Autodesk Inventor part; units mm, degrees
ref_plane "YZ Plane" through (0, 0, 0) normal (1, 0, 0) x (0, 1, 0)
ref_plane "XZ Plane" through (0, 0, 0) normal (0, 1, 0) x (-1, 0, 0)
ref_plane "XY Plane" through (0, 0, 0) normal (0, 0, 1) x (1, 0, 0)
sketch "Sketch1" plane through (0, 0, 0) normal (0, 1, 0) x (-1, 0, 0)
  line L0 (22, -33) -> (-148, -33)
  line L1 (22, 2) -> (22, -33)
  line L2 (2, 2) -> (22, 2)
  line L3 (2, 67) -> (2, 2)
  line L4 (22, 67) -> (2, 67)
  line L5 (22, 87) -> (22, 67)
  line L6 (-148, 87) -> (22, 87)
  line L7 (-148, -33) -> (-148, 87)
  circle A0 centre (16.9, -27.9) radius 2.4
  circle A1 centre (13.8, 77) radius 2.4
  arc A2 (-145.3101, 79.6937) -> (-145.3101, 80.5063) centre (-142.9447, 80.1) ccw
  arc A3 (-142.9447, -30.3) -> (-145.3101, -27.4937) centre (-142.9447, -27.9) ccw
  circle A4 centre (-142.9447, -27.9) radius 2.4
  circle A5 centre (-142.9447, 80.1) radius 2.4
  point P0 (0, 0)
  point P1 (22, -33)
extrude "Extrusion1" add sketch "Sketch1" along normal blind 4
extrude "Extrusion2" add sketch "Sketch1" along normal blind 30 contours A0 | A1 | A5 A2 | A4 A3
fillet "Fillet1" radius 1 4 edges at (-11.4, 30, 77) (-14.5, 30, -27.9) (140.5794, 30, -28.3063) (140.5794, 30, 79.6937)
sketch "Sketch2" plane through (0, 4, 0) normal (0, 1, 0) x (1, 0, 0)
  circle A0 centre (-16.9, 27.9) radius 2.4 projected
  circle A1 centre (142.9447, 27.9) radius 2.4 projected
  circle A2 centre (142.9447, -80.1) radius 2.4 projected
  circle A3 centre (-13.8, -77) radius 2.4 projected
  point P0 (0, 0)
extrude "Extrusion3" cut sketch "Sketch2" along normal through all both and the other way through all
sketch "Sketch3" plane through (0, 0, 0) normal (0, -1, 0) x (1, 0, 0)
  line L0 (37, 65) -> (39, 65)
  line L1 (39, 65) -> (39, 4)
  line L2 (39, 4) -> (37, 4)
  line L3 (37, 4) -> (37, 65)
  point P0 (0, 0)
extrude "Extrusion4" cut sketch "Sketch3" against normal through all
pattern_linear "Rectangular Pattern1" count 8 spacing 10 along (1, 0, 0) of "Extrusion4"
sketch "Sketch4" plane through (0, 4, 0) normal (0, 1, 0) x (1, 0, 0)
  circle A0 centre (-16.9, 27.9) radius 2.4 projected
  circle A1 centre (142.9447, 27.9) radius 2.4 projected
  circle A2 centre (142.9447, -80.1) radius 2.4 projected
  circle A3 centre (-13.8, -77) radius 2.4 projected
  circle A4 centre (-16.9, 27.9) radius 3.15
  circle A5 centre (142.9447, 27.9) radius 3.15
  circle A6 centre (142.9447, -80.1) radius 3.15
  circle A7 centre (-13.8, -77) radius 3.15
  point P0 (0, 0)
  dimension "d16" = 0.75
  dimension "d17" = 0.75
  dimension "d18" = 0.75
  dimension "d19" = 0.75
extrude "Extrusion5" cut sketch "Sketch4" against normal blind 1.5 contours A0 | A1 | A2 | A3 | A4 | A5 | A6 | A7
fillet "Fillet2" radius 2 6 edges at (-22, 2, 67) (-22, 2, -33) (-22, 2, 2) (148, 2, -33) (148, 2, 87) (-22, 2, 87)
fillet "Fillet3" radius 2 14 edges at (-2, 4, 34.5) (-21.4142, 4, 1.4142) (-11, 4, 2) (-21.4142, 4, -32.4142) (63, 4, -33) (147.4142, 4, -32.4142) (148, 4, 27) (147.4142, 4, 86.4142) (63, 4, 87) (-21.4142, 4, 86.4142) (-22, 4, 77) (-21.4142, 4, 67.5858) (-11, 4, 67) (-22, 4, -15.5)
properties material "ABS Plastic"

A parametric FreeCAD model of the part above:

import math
import FreeCAD as App
import Part
import Sketcher

V = App.Vector


def edges_at(feature, points):
    """Names of the edges that pass closest to the given points."""
    edges = feature.Shape.Edges
    near = lambda p: min(range(len(edges)), key=lambda i: edges[i].distToShape(Part.Vertex(*p))[0])
    return sorted({f"Edge{near(p) + 1}" for p in points})

doc = App.newDocument("Part")
body = doc.addObject("PartDesign::Body", "Body")

# Sketch on XZ plane
sketch1 = body.newObject("Sketcher::SketchObject", "Sketch")
sketch1.AttachmentSupport = (doc.getObject("XZ_Plane"), [""])
sketch1.MapMode = "FlatFace"
sketch1.addGeometry(Part.LineSegment(V(148, -33, 0), V(-22, -33, 0)), False)
sketch1.addGeometry(Part.LineSegment(V(-22, -33, 0), V(-22, 2, 0)), False)
sketch1.addGeometry(Part.LineSegment(V(-22, 2, 0), V(-2, 2, 0)), False)
sketch1.addGeometry(Part.LineSegment(V(-2, 2, 0), V(-2, 67, 0)), False)
sketch1.addGeometry(Part.LineSegment(V(-2, 67, 0), V(-22, 67, 0)), False)
sketch1.addGeometry(Part.LineSegment(V(-22, 67, 0), V(-22, 87, 0)), False)
sketch1.addGeometry(Part.LineSegment(V(-22, 87, 0), V(148, 87, 0)), False)
sketch1.addGeometry(Part.LineSegment(V(148, 87, 0), V(148, -33, 0)), False)
sketch1.addGeometry(Part.ArcOfCircle(Part.Circle(V(142.9, -27.9, 0), V(0, 0, 1), 2.4), math.radians(10), math.radians(270)), False)
sketch1.addGeometry(Part.ArcOfCircle(Part.Circle(V(142.9, -27.9, 0), V(0, 0, 1), 2.4), math.radians(-90), math.radians(10)), False)
sketch1.addGeometry(Part.Circle(V(-16.9, -27.9, 0), V(0, 0, 1), 2.4), False)
sketch1.addGeometry(Part.Circle(V(142.9, 80.1, 0), V(0, 0, 1), 2.4), False)
sketch1.addGeometry(Part.Circle(V(-13.8, 77, 0), V(0, 0, 1), 2.4), False)
sketch1.addConstraint(Sketcher.Constraint("Coincident", 0, 2, 1, 1))
sketch1.addConstraint(Sketcher.Constraint("Coincident", 1, 2, 2, 1))
sketch1.addConstraint(Sketcher.Constraint("Coincident", 2, 2, 3, 1))
sketch1.addConstraint(Sketcher.Constraint("Coincident", 3, 2, 4, 1))
sketch1.addConstraint(Sketcher.Constraint("Coincident", 4, 2, 5, 1))
sketch1.addConstraint(Sketcher.Constraint("Coincident", 5, 2, 6, 1))
sketch1.addConstraint(Sketcher.Constraint("Coincident", 6, 2, 7, 1))
sketch1.addConstraint(Sketcher.Constraint("Coincident", 7, 2, 0, 1))
sketch1.addConstraint(Sketcher.Constraint("Tangent", 8, 1, 9, 2))
sketch1.addConstraint(Sketcher.Constraint("Coincident", 9, 1, 8, 2))
sketch1.addConstraint(Sketcher.Constraint("Horizontal", 0))
sketch1.addConstraint(Sketcher.Constraint("Vertical", 1))
sketch1.addConstraint(Sketcher.Constraint("Horizontal", 2))
sketch1.addConstraint(Sketcher.Constraint("Vertical", 3))
sketch1.addConstraint(Sketcher.Constraint("Horizontal", 4))
sketch1.addConstraint(Sketcher.Constraint("Vertical", 5))
sketch1.addConstraint(Sketcher.Constraint("Horizontal", 6))
sketch1.addConstraint(Sketcher.Constraint("Vertical", 7))
sketch1.addConstraint(Sketcher.Constraint("Equal", 9, 10))
sketch1.addConstraint(Sketcher.Constraint("Equal", 10, 11))
sketch1.addConstraint(Sketcher.Constraint("Equal", 11, 12))
sketch1.addConstraint(Sketcher.Constraint("Horizontal", 9, 3, 10, 3))
sketch1.addConstraint(Sketcher.Constraint("Vertical", 9, 3, 11, 3))
sketch1.addConstraint(Sketcher.Constraint("Vertical", 1, 2, 4, 2))
sketch1.addConstraint(Sketcher.Constraint("Vertical", 11, 3, 9, 1))
sketch1.addConstraint(Sketcher.Constraint("Equal", 4, 5))
sketch1.addConstraint(Sketcher.Constraint("Diameter", 10, 4.8))
sketch1.addConstraint(Sketcher.Constraint("DistanceX", 0, 2, 0, 1, 170.0))
sketch1.addConstraint(Sketcher.Constraint("DistanceX", 2, 1, 2, 2, 20.0))
sketch1.addConstraint(Sketcher.Constraint("DistanceY", 1, 1, 1, 2, 35.0))
sketch1.addConstraint(Sketcher.Constraint("DistanceY", 3, 1, 3, 2, 65.0))
sketch1.addConstraint(Sketcher.Constraint("DistanceY", -1, 1, 12, 3, 77.0))
sketch1.addConstraint(Sketcher.Constraint("DistanceX", 0, 2, -1, 1, 22.0))
sketch1.addConstraint(Sketcher.Constraint("DistanceY", 0, 2, -1, 1, 33.0))
sketch1.addConstraint(Sketcher.Constraint("DistanceY", 8, 3, 11, 3, 108.0))
sketch1.addConstraint(Sketcher.Constraint("DistanceY", 8, 3, -1, 1, 27.9))
sketch1.addConstraint(Sketcher.Constraint("DistanceX", 10, 3, -1, 1, 16.9))
sketch1.addConstraint(Sketcher.Constraint("DistanceX", 12, 3, -1, 1, 13.8))
sketch1.addConstraint(Sketcher.Constraint("DistanceX", -1, 1, 8, 1, 145.31))
sketch1.addConstraint(Sketcher.Constraint("DistanceX", -1, 1, 8, 3, 142.9447))
pad1 = body.newObject("PartDesign::Pad", "Pad")
pad1.Profile = sketch1
pad1.Length = 4
pad1.Reversed = True

# Sketch on XZ plane
sketch2 = body.newObject("Sketcher::SketchObject", "Sketch001")
sketch2.AttachmentSupport = (doc.getObject("XZ_Plane"), [""])
sketch2.MapMode = "FlatFace"
sketch2.addGeometry(Part.Circle(V(-16.9, -27.9, 0), V(0, 0, 1), 2.4), False)
sketch2.addGeometry(Part.Circle(V(-13.8, 77, 0), V(0, 0, 1), 2.4), False)
sketch2.addGeometry(Part.Circle(V(142.9, 80.1, 0), V(0, 0, 1), 2.4), False)
sketch2.addGeometry(Part.ArcOfCircle(Part.Circle(V(142.9, -27.9, 0), V(0, 0, 1), 2.4), math.radians(-90), math.radians(10)), False)
sketch2.addGeometry(Part.ArcOfCircle(Part.Circle(V(142.9, -27.9, 0), V(0, 0, 1), 2.4), math.radians(10), math.radians(270)), False)
sketch2.addConstraint(Sketcher.Constraint("Tangent", 3, 1, 4, 2))
sketch2.addConstraint(Sketcher.Constraint("Coincident", 4, 1, 3, 2))
sketch2.addConstraint(Sketcher.Constraint("Equal", 0, 1))
sketch2.addConstraint(Sketcher.Constraint("Equal", 1, 2))
sketch2.addConstraint(Sketcher.Constraint("Equal", 2, 3))
sketch2.addConstraint(Sketcher.Constraint("Horizontal", 0, 3, 3, 3))
sketch2.addConstraint(Sketcher.Constraint("Vertical", 2, 3, 3, 3))
sketch2.addConstraint(Sketcher.Constraint("Vertical", 4, 3, 3, 1))
sketch2.addConstraint(Sketcher.Constraint("Diameter", 0, 4.8))
sketch2.addConstraint(Sketcher.Constraint("DistanceY", -1, 1, 1, 3, 77.0))
sketch2.addConstraint(Sketcher.Constraint("DistanceY", 0, 3, 2, 3, 108.0))
sketch2.addConstraint(Sketcher.Constraint("DistanceX", 0, 3, -1, 1, 16.9))
sketch2.addConstraint(Sketcher.Constraint("DistanceY", 0, 3, -1, 1, 27.9))
sketch2.addConstraint(Sketcher.Constraint("DistanceX", 1, 3, -1, 1, 13.8))
sketch2.addConstraint(Sketcher.Constraint("DistanceX", -1, 1, 4, 1, 145.31))
sketch2.addConstraint(Sketcher.Constraint("DistanceX", -1, 1, 2, 3, 142.9447))
pad2 = body.newObject("PartDesign::Pad", "Pad001")
pad2.Profile = sketch2
pad2.Length = 30
pad2.Reversed = True
doc.recompute()

fillet = body.newObject("PartDesign::Fillet", "Fillet")
fillet.Base = (pad2, edges_at(pad2, [
    (-11.4, 30, 77),
    (-14.5, 30, -27.9),
    (140.579, 30, -28.306),
    (140.579, 30, 79.694),
]))
fillet.Radius = 1

# Sketch on XZ plane
sketch3 = body.newObject("Sketcher::SketchObject", "Sketch002")
sketch3.AttachmentSupport = (doc.getObject("XZ_Plane"), [""])
sketch3.MapMode = "FlatFace"
sketch3.AttachmentOffset = App.Placement(V(0, 0, -4), App.Rotation())
sketch3.addGeometry(Part.Circle(V(-16.9, -27.9, 0), V(0, 0, 1), 2.4), False)
sketch3.addGeometry(Part.Circle(V(142.9, -27.9, 0), V(0, 0, 1), 2.4), False)
sketch3.addGeometry(Part.Circle(V(142.9, 80.1, 0), V(0, 0, 1), 2.4), False)
sketch3.addGeometry(Part.Circle(V(-13.8, 77, 0), V(0, 0, 1), 2.4), False)
sketch3.addConstraint(Sketcher.Constraint("Equal", 0, 1))
sketch3.addConstraint(Sketcher.Constraint("Equal", 1, 2))
sketch3.addConstraint(Sketcher.Constraint("Equal", 2, 3))
sketch3.addConstraint(Sketcher.Constraint("Horizontal", 0, 3, 1, 3))
sketch3.addConstraint(Sketcher.Constraint("Vertical", 1, 3, 2, 3))
sketch3.addConstraint(Sketcher.Constraint("Diameter", 0, 4.8))
sketch3.addConstraint(Sketcher.Constraint("DistanceY", -1, 1, 3, 3, 77.0))
sketch3.addConstraint(Sketcher.Constraint("DistanceY", 1, 3, 2, 3, 108.0))
sketch3.addConstraint(Sketcher.Constraint("DistanceX", 0, 3, -1, 1, 16.9))
sketch3.addConstraint(Sketcher.Constraint("DistanceY", 0, 3, -1, 1, 27.9))
sketch3.addConstraint(Sketcher.Constraint("DistanceX", 3, 3, -1, 1, 13.8))
sketch3.addConstraint(Sketcher.Constraint("DistanceX", -1, 1, 1, 3, 142.9447))
pocket1 = body.newObject("PartDesign::Pocket", "Pocket")
pocket1.Profile = sketch3
pocket1.Type = "ThroughAll"
pocket1.Midplane = True

# Sketch on XZ plane
sketch4 = body.newObject("Sketcher::SketchObject", "Sketch003")
sketch4.AttachmentSupport = (doc.getObject("XZ_Plane"), [""])
sketch4.MapMode = "FlatFace"
sketch4.addGeometry(Part.LineSegment(V(39, 65, 0), V(37, 65, 0)), False)
sketch4.addGeometry(Part.LineSegment(V(37, 65, 0), V(37, 4, 0)), False)
sketch4.addGeometry(Part.LineSegment(V(37, 4, 0), V(39, 4, 0)), False)
sketch4.addGeometry(Part.LineSegment(V(39, 4, 0), V(39, 65, 0)), False)
sketch4.addConstraint(Sketcher.Constraint("Coincident", 0, 2, 1, 1))
sketch4.addConstraint(Sketcher.Constraint("Coincident", 1, 2, 2, 1))
sketch4.addConstraint(Sketcher.Constraint("Coincident", 2, 2, 3, 1))
sketch4.addConstraint(Sketcher.Constraint("Coincident", 3, 2, 0, 1))
sketch4.addConstraint(Sketcher.Constraint("Horizontal", 0))
sketch4.addConstraint(Sketcher.Constraint("Vertical", 1))
sketch4.addConstraint(Sketcher.Constraint("Horizontal", 2))
sketch4.addConstraint(Sketcher.Constraint("Vertical", 3))
sketch4.addConstraint(Sketcher.Constraint("DistanceX", 0, 2, 0, 1, 2.0))
sketch4.addConstraint(Sketcher.Constraint("DistanceY", 1, 2, 1, 1, 61.0))
sketch4.addConstraint(Sketcher.Constraint("DistanceX", -1, 1, 0, 2, 37.0))
sketch4.addConstraint(Sketcher.Constraint("DistanceY", -1, 1, 0, 2, 65.0))
pocket2 = body.newObject("PartDesign::Pocket", "Pocket001")
pocket2.Profile = sketch4
pocket2.Type = "ThroughAll"
doc.recompute()

linearpattern = body.newObject("PartDesign::LinearPattern", "LinearPattern")
linearpattern.Originals = [pocket2]
linearpattern.Direction = (doc.getObject("X_Axis"), [""])
linearpattern.Mode = "offset"
linearpattern.Offset = 10
linearpattern.Occurrences = 8
body.Tip = linearpattern

# Sketch on XZ plane
sketch5 = body.newObject("Sketcher::SketchObject", "Sketch004")
sketch5.AttachmentSupport = (doc.getObject("XZ_Plane"), [""])
sketch5.MapMode = "FlatFace"
sketch5.AttachmentOffset = App.Placement(V(0, 0, -4), App.Rotation())
sketch5.addGeometry(Part.Circle(V(-16.9, -27.9, 0), V(0, 0, 1), 3.1), False)
sketch5.addGeometry(Part.Circle(V(142.9, -27.9, 0), V(0, 0, 1), 3.1), False)
sketch5.addGeometry(Part.Circle(V(142.9, 80.1, 0), V(0, 0, 1), 3.1), False)
sketch5.addGeometry(Part.Circle(V(-13.8, 77, 0), V(0, 0, 1), 3.1), False)
sketch5.addConstraint(Sketcher.Constraint("Equal", 0, 1))
sketch5.addConstraint(Sketcher.Constraint("Equal", 1, 2))
sketch5.addConstraint(Sketcher.Constraint("Equal", 2, 3))
sketch5.addConstraint(Sketcher.Constraint("Horizontal", 0, 3, 1, 3))
sketch5.addConstraint(Sketcher.Constraint("Vertical", 1, 3, 2, 3))
sketch5.addConstraint(Sketcher.Constraint("Diameter", 0, 6.3))
sketch5.addConstraint(Sketcher.Constraint("DistanceY", -1, 1, 3, 3, 77.0))
sketch5.addConstraint(Sketcher.Constraint("DistanceY", 1, 3, 2, 3, 108.0))
sketch5.addConstraint(Sketcher.Constraint("DistanceX", 0, 3, -1, 1, 16.9))
sketch5.addConstraint(Sketcher.Constraint("DistanceY", 0, 3, -1, 1, 27.9))
sketch5.addConstraint(Sketcher.Constraint("DistanceX", 3, 3, -1, 1, 13.8))
sketch5.addConstraint(Sketcher.Constraint("DistanceX", -1, 1, 1, 3, 142.9447))
pocket3 = body.newObject("PartDesign::Pocket", "Pocket002")
pocket3.Profile = sketch5
pocket3.Length = 1.5
pocket3.Reversed = True
doc.recompute()

fillet2 = body.newObject("PartDesign::Fillet", "Fillet001")
fillet2.Base = (pocket3, edges_at(pocket3, [
    (-22, 2, 67),
    (-22, 2, -33),
    (-22, 2, 2),
    (148, 2, -33),
    (148, 2, 87),
    (-22, 2, 87),
]))
fillet2.Radius = 2
doc.recompute()

fillet3 = body.newObject("PartDesign::Fillet", "Fillet002")
fillet3.Base = (fillet2, edges_at(fillet2, [
    (-2, 4, 34.5),
    (-21.414, 4, 1.414),
    (-11, 4, 2),
    (-21.414, 4, -32.414),
    (63, 4, -33),
    (147.414, 4, -32.414),
    (148, 4, 27),
    (147.414, 4, 86.414),
    (63, 4, 87),
    (-21.414, 4, 86.414),
    (-22, 4, 77),
    (-21.414, 4, 67.586),
    (-11, 4, 67),
    (-22, 4, -15.5),
]))
fillet3.Radius = 2

doc.recompute()
